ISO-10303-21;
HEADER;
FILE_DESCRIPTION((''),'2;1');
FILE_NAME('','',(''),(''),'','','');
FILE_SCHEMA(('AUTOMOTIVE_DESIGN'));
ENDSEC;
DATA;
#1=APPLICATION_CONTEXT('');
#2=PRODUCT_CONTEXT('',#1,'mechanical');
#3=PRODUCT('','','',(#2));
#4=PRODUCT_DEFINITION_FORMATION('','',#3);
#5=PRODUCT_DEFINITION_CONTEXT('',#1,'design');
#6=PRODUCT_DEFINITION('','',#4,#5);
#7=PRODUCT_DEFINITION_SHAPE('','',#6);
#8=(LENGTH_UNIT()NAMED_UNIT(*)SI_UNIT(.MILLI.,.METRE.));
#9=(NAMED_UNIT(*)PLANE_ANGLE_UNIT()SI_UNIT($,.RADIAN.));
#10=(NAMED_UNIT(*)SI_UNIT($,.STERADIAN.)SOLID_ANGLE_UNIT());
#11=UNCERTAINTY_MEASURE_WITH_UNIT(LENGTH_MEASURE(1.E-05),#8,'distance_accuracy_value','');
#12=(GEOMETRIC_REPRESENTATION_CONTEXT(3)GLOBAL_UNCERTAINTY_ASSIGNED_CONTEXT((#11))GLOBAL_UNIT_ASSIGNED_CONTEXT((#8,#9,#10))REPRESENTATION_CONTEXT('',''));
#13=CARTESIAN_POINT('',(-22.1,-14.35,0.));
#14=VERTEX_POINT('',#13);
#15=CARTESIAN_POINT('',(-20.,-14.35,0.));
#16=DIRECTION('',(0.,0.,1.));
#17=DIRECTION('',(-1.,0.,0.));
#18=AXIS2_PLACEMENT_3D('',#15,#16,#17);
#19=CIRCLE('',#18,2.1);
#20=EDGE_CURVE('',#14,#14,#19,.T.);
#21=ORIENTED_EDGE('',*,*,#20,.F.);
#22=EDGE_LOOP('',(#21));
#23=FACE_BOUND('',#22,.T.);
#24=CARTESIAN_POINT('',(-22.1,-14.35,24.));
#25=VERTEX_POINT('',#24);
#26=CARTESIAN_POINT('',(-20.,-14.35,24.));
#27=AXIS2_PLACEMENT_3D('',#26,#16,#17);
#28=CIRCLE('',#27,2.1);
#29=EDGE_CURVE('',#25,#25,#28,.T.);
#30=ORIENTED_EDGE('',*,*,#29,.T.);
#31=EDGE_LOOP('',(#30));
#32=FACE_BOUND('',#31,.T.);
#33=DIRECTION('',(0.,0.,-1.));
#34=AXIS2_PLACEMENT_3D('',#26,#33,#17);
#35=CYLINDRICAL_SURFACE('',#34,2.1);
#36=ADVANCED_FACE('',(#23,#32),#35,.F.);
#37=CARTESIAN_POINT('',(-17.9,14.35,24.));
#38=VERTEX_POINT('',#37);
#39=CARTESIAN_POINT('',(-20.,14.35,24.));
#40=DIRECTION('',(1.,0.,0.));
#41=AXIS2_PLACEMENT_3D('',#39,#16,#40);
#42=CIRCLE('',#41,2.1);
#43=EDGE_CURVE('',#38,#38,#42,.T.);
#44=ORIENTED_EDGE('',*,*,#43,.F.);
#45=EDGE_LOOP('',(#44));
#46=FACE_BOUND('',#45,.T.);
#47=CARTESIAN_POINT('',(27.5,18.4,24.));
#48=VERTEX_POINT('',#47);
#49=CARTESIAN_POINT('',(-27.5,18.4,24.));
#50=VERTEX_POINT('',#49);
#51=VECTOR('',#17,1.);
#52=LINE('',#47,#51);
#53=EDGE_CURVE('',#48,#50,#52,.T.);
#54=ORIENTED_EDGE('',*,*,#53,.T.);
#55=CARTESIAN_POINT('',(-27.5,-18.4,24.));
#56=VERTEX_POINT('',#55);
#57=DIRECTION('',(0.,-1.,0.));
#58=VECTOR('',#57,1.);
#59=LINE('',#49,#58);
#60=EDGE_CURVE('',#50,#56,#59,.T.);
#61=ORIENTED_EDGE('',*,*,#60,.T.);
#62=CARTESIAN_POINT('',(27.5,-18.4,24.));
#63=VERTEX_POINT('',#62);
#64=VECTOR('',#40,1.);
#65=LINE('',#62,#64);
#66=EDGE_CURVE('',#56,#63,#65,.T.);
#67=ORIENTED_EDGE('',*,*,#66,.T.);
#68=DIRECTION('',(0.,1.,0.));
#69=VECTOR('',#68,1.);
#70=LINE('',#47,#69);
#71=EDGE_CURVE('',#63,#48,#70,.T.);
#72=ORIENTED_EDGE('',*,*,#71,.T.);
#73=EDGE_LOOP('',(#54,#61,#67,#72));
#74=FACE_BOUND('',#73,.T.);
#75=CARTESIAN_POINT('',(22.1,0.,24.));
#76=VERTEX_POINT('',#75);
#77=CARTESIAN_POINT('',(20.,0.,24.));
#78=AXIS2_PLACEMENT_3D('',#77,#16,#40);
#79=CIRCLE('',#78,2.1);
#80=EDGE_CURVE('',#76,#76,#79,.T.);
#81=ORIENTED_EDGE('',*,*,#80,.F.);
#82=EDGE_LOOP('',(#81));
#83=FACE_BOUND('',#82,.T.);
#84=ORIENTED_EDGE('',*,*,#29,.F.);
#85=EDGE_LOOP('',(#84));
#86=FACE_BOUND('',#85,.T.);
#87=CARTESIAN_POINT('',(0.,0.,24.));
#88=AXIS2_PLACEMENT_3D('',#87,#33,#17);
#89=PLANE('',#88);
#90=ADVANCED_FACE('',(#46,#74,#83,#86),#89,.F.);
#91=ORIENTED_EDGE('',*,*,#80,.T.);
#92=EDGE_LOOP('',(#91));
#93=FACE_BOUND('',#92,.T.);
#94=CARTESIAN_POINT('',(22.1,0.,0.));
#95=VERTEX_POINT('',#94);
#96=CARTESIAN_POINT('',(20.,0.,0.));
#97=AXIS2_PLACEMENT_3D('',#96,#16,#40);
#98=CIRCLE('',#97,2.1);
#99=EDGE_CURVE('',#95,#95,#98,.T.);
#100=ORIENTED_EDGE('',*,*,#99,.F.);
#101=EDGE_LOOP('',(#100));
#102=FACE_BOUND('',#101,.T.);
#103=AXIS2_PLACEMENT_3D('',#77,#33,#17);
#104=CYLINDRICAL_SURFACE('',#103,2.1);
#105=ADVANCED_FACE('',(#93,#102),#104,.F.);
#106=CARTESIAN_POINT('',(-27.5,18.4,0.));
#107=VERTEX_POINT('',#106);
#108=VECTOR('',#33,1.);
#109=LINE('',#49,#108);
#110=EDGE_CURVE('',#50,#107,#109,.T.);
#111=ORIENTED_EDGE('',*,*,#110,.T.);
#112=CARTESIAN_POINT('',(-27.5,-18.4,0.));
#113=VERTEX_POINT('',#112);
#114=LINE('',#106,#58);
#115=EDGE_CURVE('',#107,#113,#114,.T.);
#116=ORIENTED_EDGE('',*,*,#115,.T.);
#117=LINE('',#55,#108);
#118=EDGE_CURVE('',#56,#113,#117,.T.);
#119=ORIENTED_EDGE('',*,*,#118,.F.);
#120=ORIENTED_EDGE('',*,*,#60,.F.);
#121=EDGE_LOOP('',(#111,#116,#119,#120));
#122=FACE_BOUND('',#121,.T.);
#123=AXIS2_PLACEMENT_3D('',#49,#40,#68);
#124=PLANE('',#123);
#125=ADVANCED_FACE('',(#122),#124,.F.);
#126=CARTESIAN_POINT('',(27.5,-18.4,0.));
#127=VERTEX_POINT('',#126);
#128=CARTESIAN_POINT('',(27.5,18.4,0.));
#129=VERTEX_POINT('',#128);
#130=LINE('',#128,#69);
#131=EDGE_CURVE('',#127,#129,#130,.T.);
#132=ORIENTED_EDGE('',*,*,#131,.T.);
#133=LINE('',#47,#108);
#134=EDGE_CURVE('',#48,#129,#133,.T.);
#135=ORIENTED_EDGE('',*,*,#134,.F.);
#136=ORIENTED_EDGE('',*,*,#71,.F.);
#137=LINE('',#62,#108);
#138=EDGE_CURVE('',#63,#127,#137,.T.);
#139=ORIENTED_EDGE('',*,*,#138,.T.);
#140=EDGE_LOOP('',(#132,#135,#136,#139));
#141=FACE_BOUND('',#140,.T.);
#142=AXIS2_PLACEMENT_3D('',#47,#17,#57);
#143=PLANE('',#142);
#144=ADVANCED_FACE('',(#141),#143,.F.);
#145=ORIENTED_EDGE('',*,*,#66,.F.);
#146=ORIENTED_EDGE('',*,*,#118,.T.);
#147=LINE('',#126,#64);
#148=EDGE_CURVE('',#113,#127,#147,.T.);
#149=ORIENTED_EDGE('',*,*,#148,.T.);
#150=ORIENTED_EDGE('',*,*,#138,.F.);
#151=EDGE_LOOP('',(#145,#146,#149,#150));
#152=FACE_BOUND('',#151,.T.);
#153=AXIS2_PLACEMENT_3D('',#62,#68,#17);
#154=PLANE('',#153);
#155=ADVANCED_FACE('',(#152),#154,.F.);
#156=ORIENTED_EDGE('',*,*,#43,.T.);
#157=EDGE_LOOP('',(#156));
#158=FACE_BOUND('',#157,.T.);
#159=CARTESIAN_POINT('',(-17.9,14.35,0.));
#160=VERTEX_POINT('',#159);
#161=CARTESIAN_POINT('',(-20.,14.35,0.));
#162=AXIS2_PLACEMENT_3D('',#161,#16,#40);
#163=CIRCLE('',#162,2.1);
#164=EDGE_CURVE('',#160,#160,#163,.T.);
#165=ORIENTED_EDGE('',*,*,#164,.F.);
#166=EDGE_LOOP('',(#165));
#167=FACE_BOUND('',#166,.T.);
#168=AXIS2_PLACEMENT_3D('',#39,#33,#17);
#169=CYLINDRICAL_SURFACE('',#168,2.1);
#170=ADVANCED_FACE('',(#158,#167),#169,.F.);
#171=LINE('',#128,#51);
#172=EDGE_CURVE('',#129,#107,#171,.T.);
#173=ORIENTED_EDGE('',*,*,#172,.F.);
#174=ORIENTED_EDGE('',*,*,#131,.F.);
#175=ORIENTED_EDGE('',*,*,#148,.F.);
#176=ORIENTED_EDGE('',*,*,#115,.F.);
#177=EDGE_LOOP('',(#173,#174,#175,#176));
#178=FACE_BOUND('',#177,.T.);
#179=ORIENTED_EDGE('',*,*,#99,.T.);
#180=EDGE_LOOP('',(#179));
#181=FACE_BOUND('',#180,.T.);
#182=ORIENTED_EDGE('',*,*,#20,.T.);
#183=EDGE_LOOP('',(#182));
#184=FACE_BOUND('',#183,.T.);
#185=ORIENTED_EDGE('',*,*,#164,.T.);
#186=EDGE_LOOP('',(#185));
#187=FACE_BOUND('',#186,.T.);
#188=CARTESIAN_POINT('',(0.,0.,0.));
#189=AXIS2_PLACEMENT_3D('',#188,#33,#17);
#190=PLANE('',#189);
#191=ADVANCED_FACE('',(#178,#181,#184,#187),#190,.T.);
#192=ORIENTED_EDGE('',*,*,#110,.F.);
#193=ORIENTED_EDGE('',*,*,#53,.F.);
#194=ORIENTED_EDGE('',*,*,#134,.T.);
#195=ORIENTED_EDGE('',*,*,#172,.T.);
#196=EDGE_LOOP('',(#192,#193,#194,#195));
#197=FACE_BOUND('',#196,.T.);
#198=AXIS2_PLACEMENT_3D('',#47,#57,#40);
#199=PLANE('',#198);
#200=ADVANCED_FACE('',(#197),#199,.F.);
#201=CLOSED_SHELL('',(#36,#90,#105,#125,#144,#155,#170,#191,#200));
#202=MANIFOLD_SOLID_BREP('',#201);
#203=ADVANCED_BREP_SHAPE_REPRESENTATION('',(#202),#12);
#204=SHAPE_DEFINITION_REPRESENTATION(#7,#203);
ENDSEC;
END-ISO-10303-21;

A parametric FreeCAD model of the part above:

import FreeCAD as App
import Part
import Sketcher
Q = App.Units.Quantity

doc = App.newDocument("Part")
params = doc.addObject("Spreadsheet::Sheet", "Params")
for row, (alias, value) in enumerate([
    ("sketch1_diameter", "4.2 mm"),
    ("sketch1_width", "55 mm"),
    ("sketch1_height", "36.8 mm"),
    ("pad1_length", "24 mm"),
], start=1):
    params.set(f"A{row}", alias)
    params.set(f"B{row}", "=" + value)
    params.setAlias(f"B{row}", alias)

body = doc.addObject("PartDesign::Body", "Body")

sketch1 = body.newObject("Sketcher::SketchObject", "Sketch")
sketch1.AttachmentSupport = (doc.getObject("XY_Plane"), [""])
sketch1.MapMode = "FlatFace"
sketch1.addGeometry([
    Part.LineSegment(App.Vector(-27.5, 18.4, 0), App.Vector(-27.5, -18.4, 0)),
    Part.LineSegment(App.Vector(-27.5, -18.4, 0), App.Vector(27.5, -18.4, 0)),
    Part.LineSegment(App.Vector(27.5, -18.4, 0), App.Vector(27.5, 18.4, 0)),
    Part.LineSegment(App.Vector(27.5, 18.4, 0), App.Vector(-27.5, 18.4, 0)),
    Part.Circle(App.Vector(-20, -14.35, 0), App.Vector(0, 0, 1), 2.1),
    Part.Circle(App.Vector(-20, 14.35, 0), App.Vector(0, 0, 1), 2.1),
    Part.Circle(App.Vector(20, 0, 0), App.Vector(0, 0, 1), 2.1),
], False)
sketch1.addConstraint([
    Sketcher.Constraint("Coincident", 0, 2, 1, 1),
    Sketcher.Constraint("Coincident", 1, 2, 2, 1),
    Sketcher.Constraint("Coincident", 2, 2, 3, 1),
    Sketcher.Constraint("Coincident", 3, 2, 0, 1),
    Sketcher.Constraint("Vertical", 0),
    Sketcher.Constraint("Horizontal", 1),
    Sketcher.Constraint("Vertical", 2),
    Sketcher.Constraint("Horizontal", 3),
    Sketcher.Constraint("Equal", 4, 5),
    Sketcher.Constraint("Equal", 5, 6),
    Sketcher.Constraint("Symmetric", 0, 2, 2, 2, -1, 1),
    Sketcher.Constraint("Symmetric", 4, 3, 5, 3, -1),
    Sketcher.Constraint("PointOnObject", 6, 3, -1),
    Sketcher.Constraint("Diameter", 4, Q("4.2 mm")),
    Sketcher.Constraint("DistanceX", 1, 1, 1, 2, Q("55 mm")),
    Sketcher.Constraint("DistanceY", 0, 2, 0, 1, Q("36.8 mm")),
    Sketcher.Constraint("DistanceX", 4, 3, -1, 1, Q("20 mm")),
    Sketcher.Constraint("DistanceX", -1, 1, 6, 3, Q("20 mm")),
    Sketcher.Constraint("DistanceY", 4, 3, 5, 3, Q("28.7 mm")),
])
sketch1.setExpression("Constraints[13]", "Params.sketch1_diameter")
sketch1.setExpression("Constraints[14]", "Params.sketch1_width")
sketch1.setExpression("Constraints[15]", "Params.sketch1_height")
pad1 = body.newObject("PartDesign::Pad", "Pad")
pad1.Profile = sketch1
pad1.setExpression("Length", "Params.pad1_length")

doc.recompute()
